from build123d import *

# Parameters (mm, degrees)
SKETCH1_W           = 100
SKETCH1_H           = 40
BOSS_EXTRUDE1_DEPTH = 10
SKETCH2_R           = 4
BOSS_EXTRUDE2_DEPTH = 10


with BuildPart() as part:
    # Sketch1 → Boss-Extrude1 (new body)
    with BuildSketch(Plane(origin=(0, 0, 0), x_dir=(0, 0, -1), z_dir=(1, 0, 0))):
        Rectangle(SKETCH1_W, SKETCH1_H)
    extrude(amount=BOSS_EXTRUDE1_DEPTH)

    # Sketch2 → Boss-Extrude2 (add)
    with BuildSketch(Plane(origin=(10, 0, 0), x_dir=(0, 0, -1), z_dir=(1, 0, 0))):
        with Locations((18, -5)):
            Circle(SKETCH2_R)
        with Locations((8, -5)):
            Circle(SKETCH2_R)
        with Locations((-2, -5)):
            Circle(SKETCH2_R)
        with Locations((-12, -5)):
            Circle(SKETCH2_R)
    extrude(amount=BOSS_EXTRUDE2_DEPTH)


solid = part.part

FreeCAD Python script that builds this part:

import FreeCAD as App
import Part
import Sketcher
Q = App.Units.Quantity

doc = App.newDocument("Part")
body = doc.addObject("PartDesign::Body", "Body")

# Sketch on YZ plane
sketch1 = body.newObject("Sketcher::SketchObject", "Sketch")
sketch1.AttachmentSupport = (doc.getObject("YZ_Plane"), [""])
sketch1.MapMode = "FlatFace"
sketch1.addGeometry(Part.LineSegment(App.Vector(20, 50, 0), App.Vector(-20, 50, 0)), False)
sketch1.addGeometry(Part.LineSegment(App.Vector(-20, 50, 0), App.Vector(-20, -50, 0)), False)
sketch1.addGeometry(Part.LineSegment(App.Vector(-20, -50, 0), App.Vector(20, -50, 0)), False)
sketch1.addGeometry(Part.LineSegment(App.Vector(20, -50, 0), App.Vector(20, 50, 0)), False)
sketch1.addConstraint(Sketcher.Constraint("Coincident", 0, 2, 1, 1))
sketch1.addConstraint(Sketcher.Constraint("Coincident", 1, 2, 2, 1))
sketch1.addConstraint(Sketcher.Constraint("Coincident", 2, 2, 3, 1))
sketch1.addConstraint(Sketcher.Constraint("Coincident", 3, 2, 0, 1))
sketch1.addConstraint(Sketcher.Constraint("Horizontal", 0))
sketch1.addConstraint(Sketcher.Constraint("Vertical", 1))
sketch1.addConstraint(Sketcher.Constraint("Horizontal", 2))
sketch1.addConstraint(Sketcher.Constraint("Vertical", 3))
sketch1.addConstraint(Sketcher.Constraint("Symmetric", 0, 2, 2, 2, -1, 1))
sketch1.addConstraint(Sketcher.Constraint("DistanceX", 0, 2, 0, 1, Q("40 mm")))
sketch1.addConstraint(Sketcher.Constraint("DistanceY", 1, 2, 1, 1, Q("100 mm")))
pad1 = body.newObject("PartDesign::Pad", "Pad")
pad1.Profile = sketch1
pad1.Length = 10

# Sketch on YZ plane
sketch2 = body.newObject("Sketcher::SketchObject", "Sketch001")
sketch2.AttachmentSupport = (doc.getObject("YZ_Plane"), [""])
sketch2.MapMode = "FlatFace"
sketch2.AttachmentOffset = App.Placement(App.Vector(0, 0, 10), App.Rotation())
sketch2.addGeometry(Part.Circle(App.Vector(-5, -18, 0), App.Vector(0, 0, 1), 4), False)
sketch2.addGeometry(Part.Circle(App.Vector(-5, -8, 0), App.Vector(0, 0, 1), 4), False)
sketch2.addGeometry(Part.Circle(App.Vector(-5, 2, 0), App.Vector(0, 0, 1), 4), False)
sketch2.addGeometry(Part.Circle(App.Vector(-5, 12, 0), App.Vector(0, 0, 1), 4), False)
sketch2.addConstraint(Sketcher.Constraint("Equal", 0, 1))
sketch2.addConstraint(Sketcher.Constraint("Equal", 1, 2))
sketch2.addConstraint(Sketcher.Constraint("Equal", 2, 3))
sketch2.addConstraint(Sketcher.Constraint("Vertical", 0, 3, 1, 3))
sketch2.addConstraint(Sketcher.Constraint("Vertical", 1, 3, 2, 3))
sketch2.addConstraint(Sketcher.Constraint("Vertical", 2, 3, 3, 3))
sketch2.addConstraint(Sketcher.Constraint("Diameter", 0, Q("8 mm")))
sketch2.addConstraint(Sketcher.Constraint("DistanceX", 0, 3, -1, 1, Q("5 mm")))
sketch2.addConstraint(Sketcher.Constraint("DistanceY", 0, 3, -1, 1, Q("18 mm")))
sketch2.addConstraint(Sketcher.Constraint("DistanceY", 1, 3, -1, 1, Q("8 mm")))
sketch2.addConstraint(Sketcher.Constraint("DistanceY", -1, 1, 2, 3, Q("2 mm")))
sketch2.addConstraint(Sketcher.Constraint("DistanceY", -1, 1, 3, 3, Q("12 mm")))
pad2 = body.newObject("PartDesign::Pad", "Pad001")
pad2.Profile = sketch2
pad2.Length = 10

doc.recompute()
